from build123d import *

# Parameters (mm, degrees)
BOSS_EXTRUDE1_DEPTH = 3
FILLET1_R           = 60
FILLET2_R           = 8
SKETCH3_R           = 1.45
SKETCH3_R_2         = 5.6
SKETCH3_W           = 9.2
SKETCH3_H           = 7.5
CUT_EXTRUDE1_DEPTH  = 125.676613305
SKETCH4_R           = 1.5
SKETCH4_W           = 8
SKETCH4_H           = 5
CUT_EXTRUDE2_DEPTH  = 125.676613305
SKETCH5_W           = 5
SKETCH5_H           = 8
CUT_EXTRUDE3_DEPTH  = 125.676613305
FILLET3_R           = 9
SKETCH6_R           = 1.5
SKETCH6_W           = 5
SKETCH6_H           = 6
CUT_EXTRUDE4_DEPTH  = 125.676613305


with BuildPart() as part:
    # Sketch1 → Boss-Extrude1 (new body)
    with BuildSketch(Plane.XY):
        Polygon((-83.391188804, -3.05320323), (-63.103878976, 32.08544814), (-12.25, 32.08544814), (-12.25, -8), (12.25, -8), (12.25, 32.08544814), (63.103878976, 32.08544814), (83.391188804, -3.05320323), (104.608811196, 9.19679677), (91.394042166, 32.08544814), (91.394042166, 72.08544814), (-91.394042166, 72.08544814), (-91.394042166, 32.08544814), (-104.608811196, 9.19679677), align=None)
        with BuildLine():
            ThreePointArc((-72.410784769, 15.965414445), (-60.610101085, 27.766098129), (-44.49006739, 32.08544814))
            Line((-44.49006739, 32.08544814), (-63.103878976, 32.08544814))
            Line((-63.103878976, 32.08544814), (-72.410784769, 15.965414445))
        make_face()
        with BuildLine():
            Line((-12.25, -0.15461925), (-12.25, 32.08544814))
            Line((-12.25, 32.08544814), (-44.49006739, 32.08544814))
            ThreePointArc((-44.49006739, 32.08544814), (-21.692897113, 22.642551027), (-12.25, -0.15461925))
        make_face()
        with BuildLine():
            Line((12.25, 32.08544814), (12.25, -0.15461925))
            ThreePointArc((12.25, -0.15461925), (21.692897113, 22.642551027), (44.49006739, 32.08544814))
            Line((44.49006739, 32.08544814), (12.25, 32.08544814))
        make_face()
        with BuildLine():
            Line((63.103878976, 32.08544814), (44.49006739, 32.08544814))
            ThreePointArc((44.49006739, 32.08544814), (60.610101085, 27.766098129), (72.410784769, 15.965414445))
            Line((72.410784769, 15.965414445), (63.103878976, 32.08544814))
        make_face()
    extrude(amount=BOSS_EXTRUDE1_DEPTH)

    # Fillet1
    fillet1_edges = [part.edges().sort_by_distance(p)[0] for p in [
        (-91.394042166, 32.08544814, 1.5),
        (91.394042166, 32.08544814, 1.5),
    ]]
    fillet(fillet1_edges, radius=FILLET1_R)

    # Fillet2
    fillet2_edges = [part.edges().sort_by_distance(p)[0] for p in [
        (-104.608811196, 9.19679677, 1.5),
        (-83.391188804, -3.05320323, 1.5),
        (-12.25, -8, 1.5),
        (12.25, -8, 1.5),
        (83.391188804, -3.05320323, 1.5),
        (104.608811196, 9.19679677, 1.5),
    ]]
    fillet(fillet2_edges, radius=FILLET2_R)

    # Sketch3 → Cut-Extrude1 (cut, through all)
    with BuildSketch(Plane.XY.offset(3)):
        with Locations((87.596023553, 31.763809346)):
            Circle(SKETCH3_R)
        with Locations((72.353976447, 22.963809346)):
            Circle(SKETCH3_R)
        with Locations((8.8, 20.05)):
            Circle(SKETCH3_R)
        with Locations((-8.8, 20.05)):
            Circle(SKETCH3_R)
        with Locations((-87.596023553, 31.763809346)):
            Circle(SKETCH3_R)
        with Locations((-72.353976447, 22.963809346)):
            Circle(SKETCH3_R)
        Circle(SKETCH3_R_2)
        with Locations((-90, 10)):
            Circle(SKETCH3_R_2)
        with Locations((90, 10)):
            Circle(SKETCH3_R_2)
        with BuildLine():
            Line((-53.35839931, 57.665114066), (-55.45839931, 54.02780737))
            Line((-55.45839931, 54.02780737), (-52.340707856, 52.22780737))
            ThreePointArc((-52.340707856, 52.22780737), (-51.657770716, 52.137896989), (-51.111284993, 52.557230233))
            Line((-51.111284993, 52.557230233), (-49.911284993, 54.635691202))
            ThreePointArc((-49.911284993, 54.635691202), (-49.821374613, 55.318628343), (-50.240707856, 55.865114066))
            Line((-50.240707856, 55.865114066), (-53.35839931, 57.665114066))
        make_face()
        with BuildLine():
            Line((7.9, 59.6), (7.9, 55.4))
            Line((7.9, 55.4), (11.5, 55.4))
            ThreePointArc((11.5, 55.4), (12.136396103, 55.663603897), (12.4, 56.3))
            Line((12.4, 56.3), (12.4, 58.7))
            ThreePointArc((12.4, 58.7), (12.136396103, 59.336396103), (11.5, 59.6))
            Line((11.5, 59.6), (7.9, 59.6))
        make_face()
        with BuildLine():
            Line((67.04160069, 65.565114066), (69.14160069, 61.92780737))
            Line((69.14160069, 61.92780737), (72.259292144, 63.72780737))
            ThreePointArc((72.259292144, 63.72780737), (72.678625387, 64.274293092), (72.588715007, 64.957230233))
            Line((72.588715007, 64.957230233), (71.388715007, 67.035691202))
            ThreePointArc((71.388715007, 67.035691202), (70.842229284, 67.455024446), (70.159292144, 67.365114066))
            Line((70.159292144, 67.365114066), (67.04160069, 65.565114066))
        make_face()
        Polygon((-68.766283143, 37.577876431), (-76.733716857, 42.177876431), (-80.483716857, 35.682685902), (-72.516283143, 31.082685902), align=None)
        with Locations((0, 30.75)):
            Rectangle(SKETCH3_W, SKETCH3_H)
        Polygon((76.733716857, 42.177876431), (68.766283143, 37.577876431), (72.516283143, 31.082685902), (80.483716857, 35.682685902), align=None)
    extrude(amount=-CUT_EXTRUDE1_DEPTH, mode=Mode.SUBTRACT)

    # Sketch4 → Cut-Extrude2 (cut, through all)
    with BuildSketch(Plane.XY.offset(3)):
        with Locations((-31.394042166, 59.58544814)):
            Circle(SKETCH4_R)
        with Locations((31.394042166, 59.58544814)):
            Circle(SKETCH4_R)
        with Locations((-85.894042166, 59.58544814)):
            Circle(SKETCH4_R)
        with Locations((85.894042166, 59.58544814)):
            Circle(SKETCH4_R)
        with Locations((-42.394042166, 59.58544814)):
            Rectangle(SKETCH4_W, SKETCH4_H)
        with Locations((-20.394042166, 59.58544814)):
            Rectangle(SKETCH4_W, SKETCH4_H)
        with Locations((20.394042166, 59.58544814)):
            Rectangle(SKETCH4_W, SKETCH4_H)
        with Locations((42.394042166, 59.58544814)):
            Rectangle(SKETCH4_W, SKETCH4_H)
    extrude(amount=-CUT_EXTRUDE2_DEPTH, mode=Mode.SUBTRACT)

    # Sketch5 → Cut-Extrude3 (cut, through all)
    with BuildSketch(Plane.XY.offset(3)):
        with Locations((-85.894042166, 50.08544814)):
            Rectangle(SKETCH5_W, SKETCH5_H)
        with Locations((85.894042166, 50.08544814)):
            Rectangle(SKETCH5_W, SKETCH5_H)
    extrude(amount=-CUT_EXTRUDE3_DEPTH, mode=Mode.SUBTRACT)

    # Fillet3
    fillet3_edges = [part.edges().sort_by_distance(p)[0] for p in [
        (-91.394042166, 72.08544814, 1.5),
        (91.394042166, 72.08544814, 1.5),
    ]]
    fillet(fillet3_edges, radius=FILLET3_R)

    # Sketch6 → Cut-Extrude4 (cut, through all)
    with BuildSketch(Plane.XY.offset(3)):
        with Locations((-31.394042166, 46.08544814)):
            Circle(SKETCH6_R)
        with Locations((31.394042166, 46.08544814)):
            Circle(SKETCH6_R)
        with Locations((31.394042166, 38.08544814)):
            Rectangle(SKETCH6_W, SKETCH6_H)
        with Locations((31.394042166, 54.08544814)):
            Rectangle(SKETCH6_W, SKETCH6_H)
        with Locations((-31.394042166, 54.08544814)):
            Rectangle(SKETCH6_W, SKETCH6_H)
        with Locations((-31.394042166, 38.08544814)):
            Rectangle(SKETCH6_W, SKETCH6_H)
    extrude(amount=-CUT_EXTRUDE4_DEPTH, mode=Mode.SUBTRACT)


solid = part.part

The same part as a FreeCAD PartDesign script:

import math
import FreeCAD as App
import Part
import Sketcher
from FreeCAD import Vector
Q = App.Units.Quantity


def edges_at(feature, points):
    """Names of the edges that pass closest to the given points."""
    edges = feature.Shape.Edges
    near = lambda p: min(range(len(edges)), key=lambda i: edges[i].distToShape(Part.Vertex(*p))[0])
    return sorted({f"Edge{near(p) + 1}" for p in points})


def add_polygon(sketch, points):
    """Adds a closed chain of lines whose ends are joined by coincident constraints."""
    first, n = sketch.GeometryCount, len(points)
    for a, b in zip(points, points[1:] + points[:1]):
        sketch.addGeometry(Part.LineSegment(App.Vector(*a, 0), App.Vector(*b, 0)), False)
    for i in range(n):
        sketch.addConstraint(Sketcher.Constraint("Coincident", first + i, 2, first + (i + 1) % n, 1))

doc = App.newDocument("Part")
body = doc.addObject("PartDesign::Body", "Body")

sketch1 = doc.addObject("Sketcher::SketchObject", "Sketch")
body.addObject(sketch1)
sketch1.AttachmentSupport = (doc.XY_Plane, [""])
sketch1.MapMode = "FlatFace"
sketch1.addGeometry([
    Part.LineSegment(Vector(-83.391189, -3.053203, 0), Vector(-72.410785, 15.965414, 0)),
    Part.ArcOfCircle(Part.Circle(Vector(-44.490067, -0.154619, 0), Vector(0, 0, 1), 32.240067), math.radians(90), math.radians(150)),
    Part.ArcOfCircle(Part.Circle(Vector(-44.490067, -0.154619, 0), Vector(0, 0, 1), 32.240067), math.radians(0), math.radians(90)),
    Part.LineSegment(Vector(-12.25, -0.154619, 0), Vector(-12.25, -8, 0)),
    Part.LineSegment(Vector(-12.25, -8, 0), Vector(12.25, -8, 0)),
    Part.LineSegment(Vector(12.25, -8, 0), Vector(12.25, -0.154619, 0)),
    Part.ArcOfCircle(Part.Circle(Vector(44.490067, -0.154619, 0), Vector(0, 0, 1), 32.240067), math.radians(90), math.radians(180)),
    Part.ArcOfCircle(Part.Circle(Vector(44.490067, -0.154619, 0), Vector(0, 0, 1), 32.240067), math.radians(30), math.radians(90)),
    Part.LineSegment(Vector(72.410785, 15.965414, 0), Vector(83.391189, -3.053203, 0)),
    Part.LineSegment(Vector(83.391189, -3.053203, 0), Vector(104.608811, 9.196797, 0)),
    Part.LineSegment(Vector(104.608811, 9.196797, 0), Vector(91.394042, 32.085448, 0)),
    Part.LineSegment(Vector(91.394042, 32.085448, 0), Vector(91.394042, 72.085448, 0)),
    Part.LineSegment(Vector(91.394042, 72.085448, 0), Vector(-91.394042, 72.085448, 0)),
    Part.LineSegment(Vector(-91.394042, 72.085448, 0), Vector(-91.394042, 32.085448, 0)),
    Part.LineSegment(Vector(-91.394042, 32.085448, 0), Vector(-104.608811, 9.196797, 0)),
    Part.LineSegment(Vector(-104.608811, 9.196797, 0), Vector(-83.391189, -3.053203, 0)),
], False)
sketch1.addConstraint([
    Sketcher.Constraint("Tangent", 0, 2, 1, 2),
    Sketcher.Constraint("Tangent", 1, 1, 2, 2),
    Sketcher.Constraint("Tangent", 2, 1, 3, 1),
    Sketcher.Constraint("Coincident", 3, 2, 4, 1),
    Sketcher.Constraint("Coincident", 4, 2, 5, 1),
    Sketcher.Constraint("Tangent", 5, 2, 6, 2),
    Sketcher.Constraint("Tangent", 6, 1, 7, 2),
    Sketcher.Constraint("Tangent", 7, 1, 8, 1),
    Sketcher.Constraint("Coincident", 8, 2, 9, 1),
    Sketcher.Constraint("Coincident", 9, 2, 10, 1),
    Sketcher.Constraint("Coincident", 10, 2, 11, 1),
    Sketcher.Constraint("Coincident", 11, 2, 12, 1),
    Sketcher.Constraint("Coincident", 12, 2, 13, 1),
    Sketcher.Constraint("Coincident", 13, 2, 14, 1),
    Sketcher.Constraint("Coincident", 14, 2, 15, 1),
    Sketcher.Constraint("Coincident", 15, 2, 0, 1),
    Sketcher.Constraint("Vertical", 3),
    Sketcher.Constraint("Horizontal", 4),
    Sketcher.Constraint("Vertical", 5),
    Sketcher.Constraint("Vertical", 11),
    Sketcher.Constraint("Horizontal", 12),
    Sketcher.Constraint("Vertical", 13),
    Sketcher.Constraint("Equal", 1, 2),
    Sketcher.Constraint("Equal", 2, 6),
    Sketcher.Constraint("Equal", 6, 7),
    Sketcher.Constraint("Symmetric", 1, 3, 6, 3, -2),
    Sketcher.Constraint("Symmetric", 10, 2, 13, 2, -2),
    Sketcher.Constraint("Symmetric", 9, 2, 14, 2, -2),
    Sketcher.Constraint("Symmetric", 8, 2, 15, 2, -2),
    Sketcher.Constraint("Perpendicular", 8, 9),
    Sketcher.Constraint("Perpendicular", 9, 10),
    Sketcher.Constraint("Horizontal", 6, 1, 10, 2),
    Sketcher.Constraint("Vertical", 2, 3, 1, 1),
    Sketcher.Constraint("Vertical", 7, 3, 6, 1),
    Sketcher.Constraint("DistanceY", 11, 1, 11, 2, Q("40 mm")),
    Sketcher.Constraint("Angle", 0, Q("60 deg")),
    Sketcher.Constraint("DistanceX", 4, 1, 4, 2, Q("24.5 mm")),
    Sketcher.Constraint("DistanceY", 3, 2, -1, 1, Q("8 mm")),
    Sketcher.Constraint("Distance", 9, Q("24.5 mm")),
    Sketcher.Constraint("Radius", 1, Q("32.240067 mm")),
    Sketcher.Constraint("DistanceY", 3, 2, 3, 1, Q("7.845381 mm")),
    Sketcher.Constraint("Distance", 0, Q("21.960808 mm")),
])
pad1 = doc.addObject("PartDesign::Pad", "Pad")
body.addObject(pad1)
pad1.Profile = sketch1
pad1.Length = 3
doc.recompute()

fillet = doc.addObject("PartDesign::Fillet", "Fillet")
body.addObject(fillet)
fillet.Base = (pad1, edges_at(pad1, [(-91.394, 32.085, 1.5), (91.394, 32.085, 1.5)]))
fillet.Radius = 60
doc.recompute()

fillet2 = doc.addObject("PartDesign::Fillet", "Fillet001")
body.addObject(fillet2)
fillet2.Base = (fillet, edges_at(fillet, [
    (-104.609, 9.197, 1.5),
    (-83.391, -3.053, 1.5),
    (-12.25, -8, 1.5),
    (12.25, -8, 1.5),
    (83.391, -3.053, 1.5),
    (104.609, 9.197, 1.5),
]))
fillet2.Radius = 8

sketch2 = doc.addObject("Sketcher::SketchObject", "Sketch001")
body.addObject(sketch2)
sketch2.AttachmentSupport = (doc.XY_Plane, [""])
sketch2.MapMode = "FlatFace"
sketch2.AttachmentOffset = App.Placement(Vector(0, 0, 3), App.Rotation())
sketch2.addGeometry(Part.Circle(Vector(87.596024, 31.763809, 0), Vector(0, 0, 1), 1.45), False)
sketch2.addGeometry(Part.Circle(Vector(72.353976, 22.963809, 0), Vector(0, 0, 1), 1.45), False)
sketch2.addGeometry(Part.Circle(Vector(8.8, 20.05, 0), Vector(0, 0, 1), 1.45), False)
sketch2.addGeometry(Part.Circle(Vector(-8.8, 20.05, 0), Vector(0, 0, 1), 1.45), False)
sketch2.addGeometry(Part.Circle(Vector(-87.596024, 31.763809, 0), Vector(0, 0, 1), 1.45), False)
sketch2.addGeometry(Part.Circle(Vector(-72.353976, 22.963809, 0), Vector(0, 0, 1), 1.45), False)
sketch2.addGeometry(Part.Circle(Vector(0, 0, 0), Vector(0, 0, 1), 5.6), False)
sketch2.addGeometry(Part.Circle(Vector(-90, 10, 0), Vector(0, 0, 1), 5.6), False)
sketch2.addGeometry(Part.Circle(Vector(90, 10, 0), Vector(0, 0, 1), 5.6), False)
sketch2.addGeometry(Part.LineSegment(Vector(-53.358399, 57.665114, 0), Vector(-55.458399, 54.027807, 0)), False)
sketch2.addGeometry(Part.LineSegment(Vector(-55.458399, 54.027807, 0), Vector(-52.340708, 52.227807, 0)), False)
sketch2.addGeometry(Part.ArcOfCircle(Part.Circle(Vector(-51.890708, 53.00723, 0), Vector(0, 0, 1), 0.9), math.radians(-120), math.radians(-30)), False)
sketch2.addGeometry(Part.LineSegment(Vector(-51.111285, 52.55723, 0), Vector(-49.911285, 54.635691, 0)), False)
sketch2.addGeometry(Part.ArcOfCircle(Part.Circle(Vector(-50.690708, 55.085691, 0), Vector(0, 0, 1), 0.9), math.radians(-30), math.radians(60)), False)
sketch2.addGeometry(Part.LineSegment(Vector(-50.240708, 55.865114, 0), Vector(-53.358399, 57.665114, 0)), False)
sketch2.addGeometry(Part.LineSegment(Vector(7.9, 59.6, 0), Vector(7.9, 55.4, 0)), False)
sketch2.addGeometry(Part.LineSegment(Vector(7.9, 55.4, 0), Vector(11.5, 55.4, 0)), False)
sketch2.addGeometry(Part.ArcOfCircle(Part.Circle(Vector(11.5, 56.3, 0), Vector(0, 0, 1), 0.9), math.radians(-90), math.radians(0)), False)
sketch2.addGeometry(Part.LineSegment(Vector(12.4, 56.3, 0), Vector(12.4, 58.7, 0)), False)
sketch2.addGeometry(Part.ArcOfCircle(Part.Circle(Vector(11.5, 58.7, 0), Vector(0, 0, 1), 0.9), math.radians(0), math.radians(90)), False)
sketch2.addGeometry(Part.LineSegment(Vector(11.5, 59.6, 0), Vector(7.9, 59.6, 0)), False)
sketch2.addGeometry(Part.LineSegment(Vector(67.041601, 65.565114, 0), Vector(69.141601, 61.927807, 0)), False)
sketch2.addGeometry(Part.LineSegment(Vector(69.141601, 61.927807, 0), Vector(72.259292, 63.727807, 0)), False)
sketch2.addGeometry(Part.ArcOfCircle(Part.Circle(Vector(71.809292, 64.50723, 0), Vector(0, 0, 1), 0.9), math.radians(-60), math.radians(30)), False)
sketch2.addGeometry(Part.LineSegment(Vector(72.588715, 64.95723, 0), Vector(71.388715, 67.035691, 0)), False)
sketch2.addGeometry(Part.ArcOfCircle(Part.Circle(Vector(70.609292, 66.585691, 0), Vector(0, 0, 1), 0.9), math.radians(30), math.radians(120)), False)
sketch2.addGeometry(Part.LineSegment(Vector(70.159292, 67.365114, 0), Vector(67.041601, 65.565114, 0)), False)
add_polygon(sketch2, [(-68.766283, 37.577876), (-76.733717, 42.177876), (-80.483717, 35.682686), (-72.516283, 31.082686)])
add_polygon(sketch2, [(-4.6, 34.5), (-4.6, 27), (4.6, 27), (4.6, 34.5)])
add_polygon(sketch2, [(76.733717, 42.177876), (68.766283, 37.577876), (72.516283, 31.082686), (80.483717, 35.682686)])
sketch2.addConstraint([
    Sketcher.Constraint("Coincident", 9, 2, 10, 1),
    Sketcher.Constraint("Tangent", 10, 2, 11, 1),
    Sketcher.Constraint("Tangent", 11, 2, 12, 1),
    Sketcher.Constraint("Tangent", 12, 2, 13, 1),
    Sketcher.Constraint("Tangent", 13, 2, 14, 1),
    Sketcher.Constraint("Coincident", 14, 2, 9, 1),
    Sketcher.Constraint("Coincident", 15, 2, 16, 1),
    Sketcher.Constraint("Tangent", 16, 2, 17, 1),
    Sketcher.Constraint("Tangent", 17, 2, 18, 1),
    Sketcher.Constraint("Tangent", 18, 2, 19, 1),
    Sketcher.Constraint("Tangent", 19, 2, 20, 1),
    Sketcher.Constraint("Coincident", 20, 2, 15, 1),
    Sketcher.Constraint("Coincident", 21, 2, 22, 1),
    Sketcher.Constraint("Tangent", 22, 2, 23, 1),
    Sketcher.Constraint("Tangent", 23, 2, 24, 1),
    Sketcher.Constraint("Tangent", 24, 2, 25, 1),
    Sketcher.Constraint("Tangent", 25, 2, 26, 1),
    Sketcher.Constraint("Coincident", 26, 2, 21, 1),
    Sketcher.Constraint("Vertical", 15),
    Sketcher.Constraint("Horizontal", 16),
    Sketcher.Constraint("Vertical", 18),
    Sketcher.Constraint("Horizontal", 20),
    Sketcher.Constraint("Vertical", 31),
    Sketcher.Constraint("Horizontal", 32),
    Sketcher.Constraint("Vertical", 33),
    Sketcher.Constraint("Horizontal", 34),
    Sketcher.Constraint("Coincident", 6, 3, -1, 1),
    Sketcher.Constraint("Equal", 0, 1),
    Sketcher.Constraint("Equal", 1, 2),
    Sketcher.Constraint("Equal", 2, 3),
    Sketcher.Constraint("Equal", 3, 4),
    Sketcher.Constraint("Equal", 4, 5),
    Sketcher.Constraint("Equal", 6, 7),
    Sketcher.Constraint("Equal", 7, 8),
    Sketcher.Constraint("Equal", 11, 13),
    Sketcher.Constraint("Equal", 13, 17),
    Sketcher.Constraint("Equal", 17, 19),
    Sketcher.Constraint("Equal", 19, 23),
    Sketcher.Constraint("Equal", 23, 25),
    Sketcher.Constraint("Symmetric", 2, 3, 3, 3, -2),
    Sketcher.Constraint("Symmetric", 0, 3, 4, 3, -2),
    Sketcher.Constraint("Symmetric", 1, 3, 5, 3, -2),
    Sketcher.Constraint("Symmetric", 7, 3, 8, 3, -2),
    Sketcher.Constraint("Symmetric", 30, 2, 35, 2, -2),
    Sketcher.Constraint("Symmetric", 29, 2, 36, 2, -2),
    Sketcher.Constraint("Symmetric", 28, 2, 37, 2, -2),
    Sketcher.Constraint("Symmetric", 27, 2, 38, 2, -2),
    Sketcher.Constraint("Perpendicular", 9, 10),
    Sketcher.Constraint("Perpendicular", 10, 12),
    Sketcher.Constraint("Perpendicular", 12, 14),
    Sketcher.Constraint("Perpendicular", 21, 22),
    Sketcher.Constraint("Perpendicular", 22, 24),
    Sketcher.Constraint("Perpendicular", 24, 26),
    Sketcher.Constraint("Parallel", 14, 27),
    Sketcher.Constraint("Perpendicular", 27, 28),
    Sketcher.Constraint("Perpendicular", 28, 29),
    Sketcher.Constraint("Perpendicular", 29, 30),
    Sketcher.Constraint("Parallel", 26, 35),
    Sketcher.Constraint("Equal", 9, 21),
    Sketcher.Constraint("Equal", 14, 22),
    Sketcher.Constraint("Diameter", 0, Q("2.9 mm")),
    Sketcher.Constraint("Diameter", 6, Q("11.2 mm")),
    Sketcher.Constraint("Radius", 11, Q("0.9 mm")),
    Sketcher.Constraint("Angle", 9, Q("-120 deg")),
    Sketcher.Constraint("DistanceX", 16, 1, 16, 2, Q("3.6 mm")),
    Sketcher.Constraint("DistanceX", 32, 1, 32, 2, Q("9.2 mm")),
    Sketcher.Constraint("DistanceY", 15, 2, 15, 1, Q("4.2 mm")),
    Sketcher.Constraint("DistanceY", 31, 2, 31, 1, Q("7.5 mm")),
    Sketcher.Constraint("DistanceX", 7, 3, -1, 1, Q("90 mm")),
    Sketcher.Constraint("DistanceY", -1, 1, 7, 3, Q("10 mm")),
    Sketcher.Constraint("DistanceY", -1, 1, 31, 2, Q("27 mm")),
    Sketcher.Constraint("Distance", 9, Q("4.2 mm")),
    Sketcher.Constraint("Distance", 10, Q("3.6 mm")),
    Sketcher.Constraint("Distance", 27, Q("9.2 mm")),
    Sketcher.Constraint("Distance", 28, Q("7.5 mm")),
    Sketcher.Constraint("DistanceX", -1, 1, 2, 3, Q("8.8 mm")),
    Sketcher.Constraint("DistanceX", -1, 1, 17, 3, Q("11.5 mm")),
    Sketcher.Constraint("DistanceY", -1, 1, 17, 3, Q("56.3 mm")),
    Sketcher.Constraint("DistanceX", 31, 2, -1, 1, Q("4.6 mm")),
    Sketcher.Constraint("DistanceY", 1, 3, 0, 3, Q("8.8 mm")),
    Sketcher.Constraint("DistanceY", -1, 1, 2, 3, Q("20.05 mm")),
    Sketcher.Constraint("DistanceX", 4, 3, 1, 3, Q("159.95 mm")),
    Sketcher.Constraint("DistanceY", 5, 3, 9, 2, Q("31.063998 mm")),
    Sketcher.Constraint("DistanceY", 0, 3, 21, 2, Q("30.163998 mm")),
    Sketcher.Constraint("DistanceX", 9, 2, -1, 1, Q("55.458399 mm")),
    Sketcher.Constraint("DistanceX", -1, 1, 21, 2, Q("69.141601 mm")),
    Sketcher.Constraint("DistanceY", -1, 1, 0, 3, Q("31.763809 mm")),
    Sketcher.Constraint("DistanceX", 5, 3, 11, 3, Q("20.463269 mm")),
    Sketcher.Constraint("DistanceX", 27, 2, 5, 3, Q("4.37974 mm")),
    Sketcher.Constraint("DistanceY", 27, 2, 9, 2, Q("11.849931 mm")),
])
pocket1 = doc.addObject("PartDesign::Pocket", "Pocket")
body.addObject(pocket1)
pocket1.Profile = sketch2
pocket1.Type = "ThroughAll"

sketch3 = doc.addObject("Sketcher::SketchObject", "Sketch002")
body.addObject(sketch3)
sketch3.AttachmentSupport = (doc.XY_Plane, [""])
sketch3.MapMode = "FlatFace"
sketch3.AttachmentOffset = App.Placement(Vector(0, 0, 3), App.Rotation())
sketch3.addGeometry(Part.Circle(Vector(-31.394042, 59.585448, 0), Vector(0, 0, 1), 1.5), False)
sketch3.addGeometry(Part.Circle(Vector(31.394042, 59.585448, 0), Vector(0, 0, 1), 1.5), False)
sketch3.addGeometry(Part.Circle(Vector(-85.894042, 59.585448, 0), Vector(0, 0, 1), 1.5), False)
sketch3.addGeometry(Part.Circle(Vector(85.894042, 59.585448, 0), Vector(0, 0, 1), 1.5), False)
add_polygon(sketch3, [(-46.394042, 62.085448), (-46.394042, 57.085448), (-38.394042, 57.085448), (-38.394042, 62.085448)])
add_polygon(sketch3, [(-24.394042, 62.085448), (-24.394042, 57.085448), (-16.394042, 57.085448), (-16.394042, 62.085448)])
add_polygon(sketch3, [(16.394042, 62.085448), (16.394042, 57.085448), (24.394042, 57.085448), (24.394042, 62.085448)])
add_polygon(sketch3, [(38.394042, 62.085448), (38.394042, 57.085448), (46.394042, 57.085448), (46.394042, 62.085448)])
sketch3.addConstraint([
    Sketcher.Constraint("Vertical", 4),
    Sketcher.Constraint("Horizontal", 5),
    Sketcher.Constraint("Vertical", 6),
    Sketcher.Constraint("Horizontal", 7),
    Sketcher.Constraint("Vertical", 8),
    Sketcher.Constraint("Horizontal", 9),
    Sketcher.Constraint("Vertical", 10),
    Sketcher.Constraint("Horizontal", 11),
    Sketcher.Constraint("Vertical", 12),
    Sketcher.Constraint("Horizontal", 13),
    Sketcher.Constraint("Vertical", 14),
    Sketcher.Constraint("Horizontal", 15),
    Sketcher.Constraint("Vertical", 16),
    Sketcher.Constraint("Horizontal", 17),
    Sketcher.Constraint("Vertical", 18),
    Sketcher.Constraint("Horizontal", 19),
    Sketcher.Constraint("Equal", 0, 1),
    Sketcher.Constraint("Equal", 1, 2),
    Sketcher.Constraint("Equal", 2, 3),
    Sketcher.Constraint("Symmetric", 0, 3, 1, 3, -2),
    Sketcher.Constraint("Symmetric", 2, 3, 3, 3, -2),
    Sketcher.Constraint("Symmetric", 9, 2, 12, 2, -2),
    Sketcher.Constraint("Symmetric", 11, 2, 14, 2, -2),
    Sketcher.Constraint("Symmetric", 5, 2, 16, 2, -2),
    Sketcher.Constraint("Symmetric", 7, 2, 18, 2, -2),
    Sketcher.Constraint("Horizontal", 1, 3, 2, 3),
    Sketcher.Constraint("Horizontal", 5, 2, 8, 2),
    Sketcher.Constraint("Horizontal", 7, 2, 10, 2),
    Sketcher.Constraint("Equal", 7, 9),
    Sketcher.Constraint("Diameter", 0, Q("3 mm")),
    Sketcher.Constraint("DistanceX", 5, 1, 5, 2, Q("8 mm")),
    Sketcher.Constraint("DistanceY", 4, 2, 4, 1, Q("5 mm")),
    Sketcher.Constraint("DistanceX", 4, 2, 0, 3, Q("15 mm")),
    Sketcher.Constraint("DistanceX", 0, 3, 8, 2, Q("7 mm")),
    Sketcher.Constraint("DistanceX", 2, 3, 0, 3, Q("54.5 mm")),
    Sketcher.Constraint("DistanceY", 4, 2, 0, 3, Q("2.5 mm")),
    Sketcher.Constraint("DistanceY", -1, 1, 0, 3, Q("59.585448 mm")),
    Sketcher.Constraint("DistanceX", 0, 3, -1, 1, Q("31.394042 mm")),
])
pocket2 = doc.addObject("PartDesign::Pocket", "Pocket001")
body.addObject(pocket2)
pocket2.Profile = sketch3
pocket2.Type = "ThroughAll"

sketch4 = doc.addObject("Sketcher::SketchObject", "Sketch003")
body.addObject(sketch4)
sketch4.AttachmentSupport = (doc.XY_Plane, [""])
sketch4.MapMode = "FlatFace"
sketch4.AttachmentOffset = App.Placement(Vector(0, 0, 3), App.Rotation())
add_polygon(sketch4, [(-88.394042, 54.085448), (-88.394042, 46.085448), (-83.394042, 46.085448), (-83.394042, 54.085448)])
add_polygon(sketch4, [(83.394042, 54.085448), (83.394042, 46.085448), (88.394042, 46.085448), (88.394042, 54.085448)])
sketch4.addConstraint([
    Sketcher.Constraint("Vertical", 0),
    Sketcher.Constraint("Horizontal", 1),
    Sketcher.Constraint("Vertical", 2),
    Sketcher.Constraint("Horizontal", 3),
    Sketcher.Constraint("Vertical", 4),
    Sketcher.Constraint("Horizontal", 5),
    Sketcher.Constraint("Vertical", 6),
    Sketcher.Constraint("Horizontal", 7),
    Sketcher.Constraint("Symmetric", 1, 2, 4, 2, -2),
    Sketcher.Constraint("Symmetric", 3, 2, 6, 2, -2),
    Sketcher.Constraint("DistanceX", 1, 1, 1, 2, Q("5 mm")),
    Sketcher.Constraint("DistanceY", 0, 2, 0, 1, Q("8 mm")),
    Sketcher.Constraint("DistanceY", -1, 1, 0, 2, Q("46.085448 mm")),
    Sketcher.Constraint("DistanceX", 0, 2, -1, 1, Q("88.394042 mm")),
])
pocket3 = doc.addObject("PartDesign::Pocket", "Pocket002")
body.addObject(pocket3)
pocket3.Profile = sketch4
pocket3.Type = "ThroughAll"
doc.recompute()

fillet3 = doc.addObject("PartDesign::Fillet", "Fillet002")
body.addObject(fillet3)
fillet3.Base = (pocket3, edges_at(pocket3, [(-91.394, 72.085, 1.5), (91.394, 72.085, 1.5)]))
fillet3.Radius = 9

sketch5 = doc.addObject("Sketcher::SketchObject", "Sketch004")
body.addObject(sketch5)
sketch5.AttachmentSupport = (doc.XY_Plane, [""])
sketch5.MapMode = "FlatFace"
sketch5.AttachmentOffset = App.Placement(Vector(0, 0, 3), App.Rotation())
sketch5.addGeometry(Part.Circle(Vector(-31.394042, 46.085448, 0), Vector(0, 0, 1), 1.5), False)
sketch5.addGeometry(Part.Circle(Vector(31.394042, 46.085448, 0), Vector(0, 0, 1), 1.5), False)
add_polygon(sketch5, [(28.894042, 41.085448), (28.894042, 35.085448), (33.894042, 35.085448), (33.894042, 41.085448)])
add_polygon(sketch5, [(28.894042, 57.085448), (28.894042, 51.085448), (33.894042, 51.085448), (33.894042, 57.085448)])
add_polygon(sketch5, [(-33.894042, 57.085448), (-33.894042, 51.085448), (-28.894042, 51.085448), (-28.894042, 57.085448)])
add_polygon(sketch5, [(-33.894042, 41.085448), (-33.894042, 35.085448), (-28.894042, 35.085448), (-28.894042, 41.085448)])
sketch5.addConstraint([
    Sketcher.Constraint("Vertical", 2),
    Sketcher.Constraint("Horizontal", 3),
    Sketcher.Constraint("Vertical", 4),
    Sketcher.Constraint("Horizontal", 5),
    Sketcher.Constraint("Vertical", 6),
    Sketcher.Constraint("Horizontal", 7),
    Sketcher.Constraint("Vertical", 8),
    Sketcher.Constraint("Horizontal", 9),
    Sketcher.Constraint("Vertical", 10),
    Sketcher.Constraint("Horizontal", 11),
    Sketcher.Constraint("Vertical", 12),
    Sketcher.Constraint("Horizontal", 13),
    Sketcher.Constraint("Vertical", 14),
    Sketcher.Constraint("Horizontal", 15),
    Sketcher.Constraint("Vertical", 16),
    Sketcher.Constraint("Horizontal", 17),
    Sketcher.Constraint("Equal", 0, 1),
    Sketcher.Constraint("Symmetric", 0, 3, 1, 3, -2),
    Sketcher.Constraint("Symmetric", 7, 2, 10, 2, -2),
    Sketcher.Constraint("Symmetric", 9, 2, 12, 2, -2),
    Sketcher.Constraint("Symmetric", 3, 2, 14, 2, -2),
    Sketcher.Constraint("Symmetric", 5, 2, 16, 2, -2),
    Sketcher.Constraint("Vertical", 5, 2, 6, 2),
    Sketcher.Constraint("Vertical", 4, 2, 7, 2),
    Sketcher.Constraint("Equal", 4, 6),
    Sketcher.Constraint("Diameter", 0, Q("3 mm")),
    Sketcher.Constraint("DistanceX", 3, 1, 3, 2, Q("5 mm")),
    Sketcher.Constraint("DistanceY", 2, 2, 2, 1, Q("6 mm")),
    Sketcher.Constraint("DistanceY", 2, 2, 1, 3, Q("11 mm")),
    Sketcher.Constraint("DistanceY", 1, 3, 6, 2, Q("5 mm")),
    Sketcher.Constraint("DistanceX", 2, 2, 1, 3, Q("2.5 mm")),
    Sketcher.Constraint("DistanceY", -1, 1, 0, 3, Q("46.085448 mm")),
    Sketcher.Constraint("DistanceX", 0, 3, -1, 1, Q("31.394042 mm")),
])
pocket4 = doc.addObject("PartDesign::Pocket", "Pocket003")
body.addObject(pocket4)
pocket4.Profile = sketch5
pocket4.Type = "ThroughAll"

doc.recompute()
